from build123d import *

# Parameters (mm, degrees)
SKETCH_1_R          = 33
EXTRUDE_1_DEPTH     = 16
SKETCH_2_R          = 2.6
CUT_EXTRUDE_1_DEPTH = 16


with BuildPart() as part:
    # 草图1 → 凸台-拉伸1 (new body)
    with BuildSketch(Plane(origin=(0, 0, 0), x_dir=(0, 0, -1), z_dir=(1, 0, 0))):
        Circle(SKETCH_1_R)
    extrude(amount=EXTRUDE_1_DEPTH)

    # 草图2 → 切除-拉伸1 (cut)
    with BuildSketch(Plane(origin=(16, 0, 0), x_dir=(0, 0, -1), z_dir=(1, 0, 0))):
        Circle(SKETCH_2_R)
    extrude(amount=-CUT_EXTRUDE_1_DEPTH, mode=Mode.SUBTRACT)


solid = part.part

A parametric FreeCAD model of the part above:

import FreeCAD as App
import Part
import Sketcher

V = App.Vector

doc = App.newDocument("Part")
body = doc.addObject("PartDesign::Body", "Body")

# Sketch on YZ plane
sketch1 = doc.addObject("Sketcher::SketchObject", "Sketch")
body.addObject(sketch1)
sketch1.AttachmentSupport = (doc.YZ_Plane, [""])
sketch1.MapMode = "FlatFace"
sketch1.addGeometry(Part.Circle(V(0, 0, 0), V(0, 0, 1), 33), False)
sketch1.addConstraint([
    Sketcher.Constraint("Coincident", 0, 3, -1, 1),
    Sketcher.Constraint("Diameter", 0, 66.0),
])
pad1 = doc.addObject("PartDesign::Pad", "Pad")
body.addObject(pad1)
pad1.Profile = sketch1
pad1.Length = 16

# Sketch on YZ plane
sketch2 = doc.addObject("Sketcher::SketchObject", "Sketch001")
body.addObject(sketch2)
sketch2.AttachmentSupport = (doc.YZ_Plane, [""])
sketch2.MapMode = "FlatFace"
sketch2.AttachmentOffset = App.Placement(V(0, 0, 16), App.Rotation())
sketch2.addGeometry(Part.Circle(V(0, 0, 0), V(0, 0, 1), 2.6), False)
sketch2.addConstraint([
    Sketcher.Constraint("Coincident", 0, 3, -1, 1),
    Sketcher.Constraint("Diameter", 0, 5.2),
])
pocket1 = doc.addObject("PartDesign::Pocket", "Pocket")
body.addObject(pocket1)
pocket1.Profile = sketch2
pocket1.Length = 16

doc.recompute()
